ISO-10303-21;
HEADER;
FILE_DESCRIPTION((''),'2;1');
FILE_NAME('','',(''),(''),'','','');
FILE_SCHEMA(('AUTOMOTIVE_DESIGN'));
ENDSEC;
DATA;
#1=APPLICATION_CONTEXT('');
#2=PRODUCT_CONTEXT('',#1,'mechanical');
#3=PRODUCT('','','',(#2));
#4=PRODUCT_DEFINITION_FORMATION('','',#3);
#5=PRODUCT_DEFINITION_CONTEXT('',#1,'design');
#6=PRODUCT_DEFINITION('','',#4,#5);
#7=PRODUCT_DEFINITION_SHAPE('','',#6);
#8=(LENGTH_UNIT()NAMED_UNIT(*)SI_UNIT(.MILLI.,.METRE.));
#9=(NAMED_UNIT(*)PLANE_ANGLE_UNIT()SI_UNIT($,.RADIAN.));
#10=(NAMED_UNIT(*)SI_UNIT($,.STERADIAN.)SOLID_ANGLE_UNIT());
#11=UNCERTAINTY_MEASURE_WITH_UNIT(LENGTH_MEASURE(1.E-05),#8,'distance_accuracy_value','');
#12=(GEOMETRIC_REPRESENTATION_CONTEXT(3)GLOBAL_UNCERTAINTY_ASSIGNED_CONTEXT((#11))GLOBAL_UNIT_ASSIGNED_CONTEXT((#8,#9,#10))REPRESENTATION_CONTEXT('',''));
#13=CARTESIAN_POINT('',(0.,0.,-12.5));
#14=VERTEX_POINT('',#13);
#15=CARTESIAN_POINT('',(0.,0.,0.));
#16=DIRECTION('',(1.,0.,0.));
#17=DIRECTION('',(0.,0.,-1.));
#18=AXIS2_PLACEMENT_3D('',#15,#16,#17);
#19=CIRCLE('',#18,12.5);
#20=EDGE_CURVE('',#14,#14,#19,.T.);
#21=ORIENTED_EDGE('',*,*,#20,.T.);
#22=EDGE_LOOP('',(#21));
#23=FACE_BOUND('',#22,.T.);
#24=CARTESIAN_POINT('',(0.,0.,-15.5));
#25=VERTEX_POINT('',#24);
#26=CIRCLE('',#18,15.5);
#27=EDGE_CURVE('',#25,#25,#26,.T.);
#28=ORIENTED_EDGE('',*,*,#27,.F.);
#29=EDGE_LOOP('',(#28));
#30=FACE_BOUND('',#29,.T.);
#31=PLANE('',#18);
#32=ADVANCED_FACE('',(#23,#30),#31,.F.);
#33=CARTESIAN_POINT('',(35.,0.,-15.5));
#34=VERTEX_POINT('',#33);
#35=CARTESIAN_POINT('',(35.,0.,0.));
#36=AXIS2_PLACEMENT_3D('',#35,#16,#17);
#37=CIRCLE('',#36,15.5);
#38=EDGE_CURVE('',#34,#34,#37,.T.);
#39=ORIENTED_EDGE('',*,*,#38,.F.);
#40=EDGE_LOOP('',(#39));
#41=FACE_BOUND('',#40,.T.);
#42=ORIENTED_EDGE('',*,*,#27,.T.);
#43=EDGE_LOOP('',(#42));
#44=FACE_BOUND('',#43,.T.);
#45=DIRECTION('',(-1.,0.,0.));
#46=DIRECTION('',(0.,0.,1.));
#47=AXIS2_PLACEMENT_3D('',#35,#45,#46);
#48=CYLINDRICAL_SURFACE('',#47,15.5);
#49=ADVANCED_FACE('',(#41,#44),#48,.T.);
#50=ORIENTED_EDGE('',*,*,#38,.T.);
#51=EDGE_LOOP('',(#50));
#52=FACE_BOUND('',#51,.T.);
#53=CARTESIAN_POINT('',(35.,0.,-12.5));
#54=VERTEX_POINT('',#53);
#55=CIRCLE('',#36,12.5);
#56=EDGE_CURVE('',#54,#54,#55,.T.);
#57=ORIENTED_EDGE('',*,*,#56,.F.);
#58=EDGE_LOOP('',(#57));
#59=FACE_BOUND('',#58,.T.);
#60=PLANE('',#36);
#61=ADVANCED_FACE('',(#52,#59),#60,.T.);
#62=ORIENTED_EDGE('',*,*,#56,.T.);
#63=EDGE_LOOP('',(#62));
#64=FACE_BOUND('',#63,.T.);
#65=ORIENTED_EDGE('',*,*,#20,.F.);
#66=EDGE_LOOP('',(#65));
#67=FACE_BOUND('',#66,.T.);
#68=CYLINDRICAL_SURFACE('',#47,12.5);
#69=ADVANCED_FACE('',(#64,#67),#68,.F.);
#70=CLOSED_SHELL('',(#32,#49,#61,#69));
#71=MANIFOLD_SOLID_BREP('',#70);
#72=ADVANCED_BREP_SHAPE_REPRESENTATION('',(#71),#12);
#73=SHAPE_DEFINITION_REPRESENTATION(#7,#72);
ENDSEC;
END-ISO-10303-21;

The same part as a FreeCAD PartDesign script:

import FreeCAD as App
import Part
import Sketcher

V = App.Vector

doc = App.newDocument("Part")
body = doc.addObject("PartDesign::Body", "Body")

# Sketch on YZ plane
sketch1 = body.newObject("Sketcher::SketchObject", "Sketch")
sketch1.AttachmentSupport = (doc.getObject("YZ_Plane"), [""])
sketch1.MapMode = "FlatFace"
sketch1.addGeometry(Part.Circle(V(0, 0, 0), V(0, 0, 1), 16), False)
sketch1.addGeometry(Part.Circle(V(0, 0, 0), V(0, 0, 1), 12), False)
sketch1.addConstraint(Sketcher.Constraint("Coincident", 0, 3, -1, 1))
sketch1.addConstraint(Sketcher.Constraint("Coincident", 1, 3, -1, 1))
sketch1.addConstraint(Sketcher.Constraint("Diameter", 0, 31.0))
sketch1.addConstraint(Sketcher.Constraint("Diameter", 1, 25.0))
pad1 = body.newObject("PartDesign::Pad", "Pad")
pad1.Profile = sketch1
pad1.Length = 35

doc.recompute()
